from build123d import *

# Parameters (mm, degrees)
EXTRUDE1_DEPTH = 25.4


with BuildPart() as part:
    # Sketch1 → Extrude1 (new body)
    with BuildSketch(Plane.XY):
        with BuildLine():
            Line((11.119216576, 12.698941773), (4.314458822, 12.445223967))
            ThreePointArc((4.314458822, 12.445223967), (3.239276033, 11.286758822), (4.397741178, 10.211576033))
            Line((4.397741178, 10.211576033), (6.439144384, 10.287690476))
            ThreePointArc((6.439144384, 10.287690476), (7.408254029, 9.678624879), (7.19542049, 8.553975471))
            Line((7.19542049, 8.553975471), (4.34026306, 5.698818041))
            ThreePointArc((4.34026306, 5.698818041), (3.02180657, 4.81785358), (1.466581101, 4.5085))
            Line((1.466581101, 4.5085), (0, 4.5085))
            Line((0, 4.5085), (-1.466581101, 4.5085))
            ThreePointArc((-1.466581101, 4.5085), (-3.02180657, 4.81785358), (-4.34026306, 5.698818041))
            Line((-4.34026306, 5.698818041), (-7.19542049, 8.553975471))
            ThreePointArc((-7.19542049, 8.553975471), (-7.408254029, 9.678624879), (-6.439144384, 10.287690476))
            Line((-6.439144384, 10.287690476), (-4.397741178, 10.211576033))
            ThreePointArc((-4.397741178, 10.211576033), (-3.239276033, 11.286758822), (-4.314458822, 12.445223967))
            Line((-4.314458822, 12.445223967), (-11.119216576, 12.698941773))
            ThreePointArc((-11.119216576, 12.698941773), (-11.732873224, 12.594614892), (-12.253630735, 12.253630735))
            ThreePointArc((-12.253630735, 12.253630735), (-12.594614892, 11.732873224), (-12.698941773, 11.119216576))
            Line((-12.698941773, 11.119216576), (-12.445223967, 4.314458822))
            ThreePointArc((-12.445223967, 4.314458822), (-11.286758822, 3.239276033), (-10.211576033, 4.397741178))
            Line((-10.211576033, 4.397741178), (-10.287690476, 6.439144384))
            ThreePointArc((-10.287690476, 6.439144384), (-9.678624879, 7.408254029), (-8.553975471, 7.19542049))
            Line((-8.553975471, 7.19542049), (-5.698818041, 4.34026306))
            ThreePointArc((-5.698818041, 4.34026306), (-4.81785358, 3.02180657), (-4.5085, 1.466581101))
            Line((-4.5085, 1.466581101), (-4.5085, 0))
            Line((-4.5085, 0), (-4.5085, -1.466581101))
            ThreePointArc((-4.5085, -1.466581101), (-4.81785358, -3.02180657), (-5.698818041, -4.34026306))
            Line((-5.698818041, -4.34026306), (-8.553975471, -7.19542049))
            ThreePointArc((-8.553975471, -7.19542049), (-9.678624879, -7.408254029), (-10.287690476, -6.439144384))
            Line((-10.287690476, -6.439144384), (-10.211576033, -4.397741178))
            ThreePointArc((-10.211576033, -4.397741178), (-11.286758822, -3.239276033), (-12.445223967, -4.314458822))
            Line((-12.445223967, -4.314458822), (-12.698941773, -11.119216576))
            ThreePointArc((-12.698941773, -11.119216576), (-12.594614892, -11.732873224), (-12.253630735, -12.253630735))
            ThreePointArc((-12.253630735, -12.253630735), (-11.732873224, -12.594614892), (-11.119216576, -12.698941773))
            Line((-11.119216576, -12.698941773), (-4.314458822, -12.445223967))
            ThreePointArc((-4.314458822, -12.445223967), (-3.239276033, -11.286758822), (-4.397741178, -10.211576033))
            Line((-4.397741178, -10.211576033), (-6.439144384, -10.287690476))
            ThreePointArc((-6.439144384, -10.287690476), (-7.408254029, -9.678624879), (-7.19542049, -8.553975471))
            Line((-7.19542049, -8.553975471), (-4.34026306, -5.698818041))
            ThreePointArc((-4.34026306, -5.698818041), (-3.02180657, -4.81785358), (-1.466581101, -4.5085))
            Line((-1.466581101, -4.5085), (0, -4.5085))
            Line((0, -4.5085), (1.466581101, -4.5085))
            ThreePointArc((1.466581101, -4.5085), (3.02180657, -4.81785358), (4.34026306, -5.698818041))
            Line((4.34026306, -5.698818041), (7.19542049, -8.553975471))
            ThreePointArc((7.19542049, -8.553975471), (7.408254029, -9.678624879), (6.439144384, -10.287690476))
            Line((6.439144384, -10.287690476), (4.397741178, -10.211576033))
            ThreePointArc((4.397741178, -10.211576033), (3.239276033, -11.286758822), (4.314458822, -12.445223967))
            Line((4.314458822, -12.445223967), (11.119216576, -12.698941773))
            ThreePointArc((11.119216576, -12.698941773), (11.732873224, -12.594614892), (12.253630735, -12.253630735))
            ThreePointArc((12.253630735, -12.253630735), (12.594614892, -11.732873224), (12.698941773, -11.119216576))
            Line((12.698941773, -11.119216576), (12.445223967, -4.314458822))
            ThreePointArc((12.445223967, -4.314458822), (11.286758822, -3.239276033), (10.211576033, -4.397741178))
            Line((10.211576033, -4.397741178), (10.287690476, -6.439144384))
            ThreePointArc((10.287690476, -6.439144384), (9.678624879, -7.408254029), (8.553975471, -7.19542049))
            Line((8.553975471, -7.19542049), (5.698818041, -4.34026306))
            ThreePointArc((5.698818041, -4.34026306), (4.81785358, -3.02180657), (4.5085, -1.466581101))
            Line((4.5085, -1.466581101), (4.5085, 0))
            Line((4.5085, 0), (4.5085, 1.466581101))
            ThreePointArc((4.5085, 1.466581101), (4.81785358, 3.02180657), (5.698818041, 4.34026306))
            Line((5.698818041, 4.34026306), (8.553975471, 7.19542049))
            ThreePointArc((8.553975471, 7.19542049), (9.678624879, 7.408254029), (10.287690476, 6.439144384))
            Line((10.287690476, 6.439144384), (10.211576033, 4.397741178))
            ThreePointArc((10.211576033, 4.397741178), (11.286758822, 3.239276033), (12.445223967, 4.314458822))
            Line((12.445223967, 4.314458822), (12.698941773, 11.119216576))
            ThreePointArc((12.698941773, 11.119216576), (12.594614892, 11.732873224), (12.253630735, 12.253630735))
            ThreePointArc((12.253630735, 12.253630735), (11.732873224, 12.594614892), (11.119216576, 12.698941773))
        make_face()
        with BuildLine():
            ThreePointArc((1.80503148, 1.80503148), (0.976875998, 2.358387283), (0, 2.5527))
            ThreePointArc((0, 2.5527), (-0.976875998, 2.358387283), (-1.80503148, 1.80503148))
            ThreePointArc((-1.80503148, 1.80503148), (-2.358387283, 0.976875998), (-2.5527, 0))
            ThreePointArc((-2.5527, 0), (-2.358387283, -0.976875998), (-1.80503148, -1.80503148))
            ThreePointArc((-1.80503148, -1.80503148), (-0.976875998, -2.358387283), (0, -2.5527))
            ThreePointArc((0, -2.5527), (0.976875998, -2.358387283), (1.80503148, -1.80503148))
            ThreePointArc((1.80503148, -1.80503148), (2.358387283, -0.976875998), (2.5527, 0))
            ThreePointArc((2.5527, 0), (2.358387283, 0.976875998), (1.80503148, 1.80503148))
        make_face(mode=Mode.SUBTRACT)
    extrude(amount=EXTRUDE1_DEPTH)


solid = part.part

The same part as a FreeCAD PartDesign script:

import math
import FreeCAD as App
import Part
import Sketcher

V = App.Vector
Q = App.Units.Quantity

doc = App.newDocument("Part")
body = doc.addObject("PartDesign::Body", "Body")

sketch1 = body.newObject("Sketcher::SketchObject", "Sketch")
sketch1.AttachmentSupport = (doc.getObject("XY_Plane"), [""])
sketch1.MapMode = "FlatFace"
sketch1.addGeometry([
    Part.LineSegment(V(11.1, 12.7, 0), V(4.3, 12.4, 0)),
    Part.ArcOfCircle(Part.Circle(V(4.4, 11.3, 0), V(0, 0, 1), 1.1), math.radians(92), math.radians(272)),
    Part.LineSegment(V(4.4, 10.2, 0), V(6.4, 10.3, 0)),
    Part.ArcOfCircle(Part.Circle(V(6.5, 9.3, 0), V(0, 0, 1), 1), math.radians(-45), math.radians(92)),
    Part.LineSegment(V(7.2, 8.6, 0), V(4.3, 5.7, 0)),
    Part.ArcOfCircle(Part.Circle(V(1.5, 8.6, 0), V(0, 0, 1), 4.1), math.radians(-90), math.radians(-45)),
    Part.LineSegment(V(1.5, 4.5, 0), V(-1.5, 4.5, 0)),
    Part.ArcOfCircle(Part.Circle(V(-1.5, 8.6, 0), V(0, 0, 1), 4.1), math.radians(-135), math.radians(-90)),
    Part.LineSegment(V(-4.3, 5.7, 0), V(-7.2, 8.6, 0)),
    Part.ArcOfCircle(Part.Circle(V(-6.5, 9.3, 0), V(0, 0, 1), 1), math.radians(88), math.radians(225)),
    Part.LineSegment(V(-6.4, 10.3, 0), V(-4.4, 10.2, 0)),
    Part.ArcOfCircle(Part.Circle(V(-4.4, 11.3, 0), V(0, 0, 1), 1.1), math.radians(-92), math.radians(88)),
    Part.LineSegment(V(-4.3, 12.4, 0), V(-11.1, 12.7, 0)),
    Part.ArcOfCircle(Part.Circle(V(-11.2, 11.2, 0), V(0, 0, 1), 1.5), math.radians(88), math.radians(135)),
    Part.ArcOfCircle(Part.Circle(V(-11.2, 11.2, 0), V(0, 0, 1), 1.5), math.radians(135), math.radians(182)),
    Part.LineSegment(V(-12.7, 11.1, 0), V(-12.4, 4.3, 0)),
    Part.ArcOfCircle(Part.Circle(V(-11.3, 4.4, 0), V(0, 0, 1), 1.1), math.radians(-178), math.radians(2)),
    Part.LineSegment(V(-10.2, 4.4, 0), V(-10.3, 6.4, 0)),
    Part.ArcOfCircle(Part.Circle(V(-9.3, 6.5, 0), V(0, 0, 1), 1), math.radians(45), math.radians(182)),
    Part.LineSegment(V(-8.6, 7.2, 0), V(-5.7, 4.3, 0)),
    Part.ArcOfCircle(Part.Circle(V(-8.6, 1.5, 0), V(0, 0, 1), 4.1), math.radians(0), math.radians(45)),
    Part.LineSegment(V(-4.5, 1.5, 0), V(-4.5, -1.5, 0)),
    Part.ArcOfCircle(Part.Circle(V(-8.6, -1.5, 0), V(0, 0, 1), 4.1), math.radians(-45), math.radians(0)),
    Part.LineSegment(V(-5.7, -4.3, 0), V(-8.6, -7.2, 0)),
    Part.ArcOfCircle(Part.Circle(V(-9.3, -6.5, 0), V(0, 0, 1), 1), math.radians(178), math.radians(315)),
    Part.LineSegment(V(-10.3, -6.4, 0), V(-10.2, -4.4, 0)),
    Part.ArcOfCircle(Part.Circle(V(-11.3, -4.4, 0), V(0, 0, 1), 1.1), math.radians(-2), math.radians(178)),
    Part.LineSegment(V(-12.4, -4.3, 0), V(-12.7, -11.1, 0)),
    Part.ArcOfCircle(Part.Circle(V(-11.2, -11.2, 0), V(0, 0, 1), 1.5), math.radians(178), math.radians(225)),
    Part.ArcOfCircle(Part.Circle(V(-11.2, -11.2, 0), V(0, 0, 1), 1.5), math.radians(-135), math.radians(-88)),
    Part.LineSegment(V(-11.1, -12.7, 0), V(-4.3, -12.4, 0)),
    Part.ArcOfCircle(Part.Circle(V(-4.4, -11.3, 0), V(0, 0, 1), 1.1), math.radians(-88), math.radians(92)),
    Part.LineSegment(V(-4.4, -10.2, 0), V(-6.4, -10.3, 0)),
    Part.ArcOfCircle(Part.Circle(V(-6.5, -9.3, 0), V(0, 0, 1), 1), math.radians(135), math.radians(272)),
    Part.LineSegment(V(-7.2, -8.6, 0), V(-4.3, -5.7, 0)),
    Part.ArcOfCircle(Part.Circle(V(-1.5, -8.6, 0), V(0, 0, 1), 4.1), math.radians(90), math.radians(135)),
    Part.LineSegment(V(-1.5, -4.5, 0), V(1.5, -4.5, 0)),
    Part.ArcOfCircle(Part.Circle(V(1.5, -8.6, 0), V(0, 0, 1), 4.1), math.radians(45), math.radians(90)),
    Part.LineSegment(V(4.3, -5.7, 0), V(7.2, -8.6, 0)),
    Part.ArcOfCircle(Part.Circle(V(6.5, -9.3, 0), V(0, 0, 1), 1), math.radians(-92), math.radians(45)),
    Part.LineSegment(V(6.4, -10.3, 0), V(4.4, -10.2, 0)),
    Part.ArcOfCircle(Part.Circle(V(4.4, -11.3, 0), V(0, 0, 1), 1.1), math.radians(88), math.radians(268)),
    Part.LineSegment(V(4.3, -12.4, 0), V(11.1, -12.7, 0)),
    Part.ArcOfCircle(Part.Circle(V(11.2, -11.2, 0), V(0, 0, 1), 1.5), math.radians(-92), math.radians(-45)),
    Part.ArcOfCircle(Part.Circle(V(11.2, -11.2, 0), V(0, 0, 1), 1.5), math.radians(-45), math.radians(2)),
    Part.LineSegment(V(12.7, -11.1, 0), V(12.4, -4.3, 0)),
    Part.ArcOfCircle(Part.Circle(V(11.3, -4.4, 0), V(0, 0, 1), 1.1), math.radians(2), math.radians(182)),
    Part.LineSegment(V(10.2, -4.4, 0), V(10.3, -6.4, 0)),
    Part.ArcOfCircle(Part.Circle(V(9.3, -6.5, 0), V(0, 0, 1), 1), math.radians(-135), math.radians(2)),
    Part.LineSegment(V(8.6, -7.2, 0), V(5.7, -4.3, 0)),
    Part.ArcOfCircle(Part.Circle(V(8.6, -1.5, 0), V(0, 0, 1), 4.1), math.radians(-180), math.radians(-135)),
    Part.LineSegment(V(4.5, -1.5, 0), V(4.5, 1.5, 0)),
    Part.ArcOfCircle(Part.Circle(V(8.6, 1.5, 0), V(0, 0, 1), 4.1), math.radians(135), math.radians(180)),
    Part.LineSegment(V(5.7, 4.3, 0), V(8.6, 7.2, 0)),
    Part.ArcOfCircle(Part.Circle(V(9.3, 6.5, 0), V(0, 0, 1), 1), math.radians(-2), math.radians(135)),
    Part.LineSegment(V(10.3, 6.4, 0), V(10.2, 4.4, 0)),
    Part.ArcOfCircle(Part.Circle(V(11.3, 4.4, 0), V(0, 0, 1), 1.1), math.radians(178), math.radians(358)),
    Part.LineSegment(V(12.4, 4.3, 0), V(12.7, 11.1, 0)),
    Part.ArcOfCircle(Part.Circle(V(11.2, 11.2, 0), V(0, 0, 1), 1.5), math.radians(-2), math.radians(45)),
    Part.ArcOfCircle(Part.Circle(V(11.2, 11.2, 0), V(0, 0, 1), 1.5), math.radians(45), math.radians(92)),
    Part.ArcOfCircle(Part.Circle(V(0, 0, 0), V(0, 0, 1), 2.6), math.radians(45), math.radians(90)),
    Part.ArcOfCircle(Part.Circle(V(0, 0, 0), V(0, 0, 1), 2.6), math.radians(0), math.radians(45)),
    Part.ArcOfCircle(Part.Circle(V(0, 0, 0), V(0, 0, 1), 2.6), math.radians(-45), math.radians(0)),
    Part.ArcOfCircle(Part.Circle(V(0, 0, 0), V(0, 0, 1), 2.6), math.radians(-90), math.radians(-45)),
    Part.ArcOfCircle(Part.Circle(V(0, 0, 0), V(0, 0, 1), 2.6), math.radians(-135), math.radians(-90)),
    Part.ArcOfCircle(Part.Circle(V(0, 0, 0), V(0, 0, 1), 2.6), math.radians(180), math.radians(225)),
    Part.ArcOfCircle(Part.Circle(V(0, 0, 0), V(0, 0, 1), 2.6), math.radians(135), math.radians(180)),
    Part.ArcOfCircle(Part.Circle(V(0, 0, 0), V(0, 0, 1), 2.6), math.radians(90), math.radians(135)),
], False)
sketch1.addConstraint([
    Sketcher.Constraint("Tangent", 0, 2, 1, 1),
    Sketcher.Constraint("Tangent", 1, 2, 2, 1),
    Sketcher.Constraint("Tangent", 2, 2, 3, 2),
    Sketcher.Constraint("Tangent", 3, 1, 4, 1),
    Sketcher.Constraint("Tangent", 4, 2, 5, 2),
    Sketcher.Constraint("Tangent", 5, 1, 6, 1),
    Sketcher.Constraint("Tangent", 6, 2, 7, 2),
    Sketcher.Constraint("Tangent", 7, 1, 8, 1),
    Sketcher.Constraint("Tangent", 8, 2, 9, 2),
    Sketcher.Constraint("Tangent", 9, 1, 10, 1),
    Sketcher.Constraint("Tangent", 10, 2, 11, 1),
    Sketcher.Constraint("Tangent", 11, 2, 12, 1),
    Sketcher.Constraint("Tangent", 12, 2, 13, 1),
    Sketcher.Constraint("Tangent", 13, 2, 14, 1),
    Sketcher.Constraint("Tangent", 14, 2, 15, 1),
    Sketcher.Constraint("Tangent", 15, 2, 16, 1),
    Sketcher.Constraint("Tangent", 16, 2, 17, 1),
    Sketcher.Constraint("Tangent", 17, 2, 18, 2),
    Sketcher.Constraint("Tangent", 18, 1, 19, 1),
    Sketcher.Constraint("Tangent", 19, 2, 20, 2),
    Sketcher.Constraint("Tangent", 20, 1, 21, 1),
    Sketcher.Constraint("Tangent", 21, 2, 22, 2),
    Sketcher.Constraint("Tangent", 22, 1, 23, 1),
    Sketcher.Constraint("Tangent", 23, 2, 24, 2),
    Sketcher.Constraint("Tangent", 24, 1, 25, 1),
    Sketcher.Constraint("Tangent", 25, 2, 26, 1),
    Sketcher.Constraint("Tangent", 26, 2, 27, 1),
    Sketcher.Constraint("Tangent", 27, 2, 28, 1),
    Sketcher.Constraint("Tangent", 28, 2, 29, 1),
    Sketcher.Constraint("Tangent", 29, 2, 30, 1),
    Sketcher.Constraint("Tangent", 30, 2, 31, 1),
    Sketcher.Constraint("Tangent", 31, 2, 32, 1),
    Sketcher.Constraint("Tangent", 32, 2, 33, 2),
    Sketcher.Constraint("Tangent", 33, 1, 34, 1),
    Sketcher.Constraint("Tangent", 34, 2, 35, 2),
    Sketcher.Constraint("Tangent", 35, 1, 36, 1),
    Sketcher.Constraint("Tangent", 36, 2, 37, 2),
    Sketcher.Constraint("Tangent", 37, 1, 38, 1),
    Sketcher.Constraint("Tangent", 38, 2, 39, 2),
    Sketcher.Constraint("Tangent", 39, 1, 40, 1),
    Sketcher.Constraint("Tangent", 40, 2, 41, 1),
    Sketcher.Constraint("Tangent", 41, 2, 42, 1),
    Sketcher.Constraint("Tangent", 42, 2, 43, 1),
    Sketcher.Constraint("Tangent", 43, 2, 44, 1),
    Sketcher.Constraint("Tangent", 44, 2, 45, 1),
    Sketcher.Constraint("Tangent", 45, 2, 46, 1),
    Sketcher.Constraint("Tangent", 46, 2, 47, 1),
    Sketcher.Constraint("Tangent", 47, 2, 48, 2),
    Sketcher.Constraint("Tangent", 48, 1, 49, 1),
    Sketcher.Constraint("Tangent", 49, 2, 50, 2),
    Sketcher.Constraint("Tangent", 50, 1, 51, 1),
    Sketcher.Constraint("Tangent", 51, 2, 52, 2),
    Sketcher.Constraint("Tangent", 52, 1, 53, 1),
    Sketcher.Constraint("Tangent", 53, 2, 54, 2),
    Sketcher.Constraint("Tangent", 54, 1, 55, 1),
    Sketcher.Constraint("Tangent", 55, 2, 56, 1),
    Sketcher.Constraint("Tangent", 56, 2, 57, 1),
    Sketcher.Constraint("Tangent", 57, 2, 58, 1),
    Sketcher.Constraint("Tangent", 58, 2, 59, 1),
    Sketcher.Constraint("Tangent", 59, 2, 0, 1),
    Sketcher.Constraint("Tangent", 60, 1, 61, 2),
    Sketcher.Constraint("Tangent", 61, 1, 62, 2),
    Sketcher.Constraint("Tangent", 62, 1, 63, 2),
    Sketcher.Constraint("Tangent", 63, 1, 64, 2),
    Sketcher.Constraint("Tangent", 64, 1, 65, 2),
    Sketcher.Constraint("Tangent", 65, 1, 66, 2),
    Sketcher.Constraint("Tangent", 66, 1, 67, 2),
    Sketcher.Constraint("Tangent", 67, 1, 60, 2),
    Sketcher.Constraint("Horizontal", 6),
    Sketcher.Constraint("Vertical", 21),
    Sketcher.Constraint("Horizontal", 36),
    Sketcher.Constraint("Vertical", 51),
    Sketcher.Constraint("Coincident", 60, 3, -1, 1),
    Sketcher.Constraint("Coincident", 62, 3, -1, 1),
    Sketcher.Constraint("Coincident", 64, 3, -1, 1),
    Sketcher.Constraint("Equal", 5, 7),
    Sketcher.Constraint("Equal", 3, 9),
    Sketcher.Constraint("Equal", 1, 11),
    Sketcher.Constraint("Equal", 13, 14),
    Sketcher.Constraint("Equal", 11, 16),
    Sketcher.Constraint("Equal", 9, 18),
    Sketcher.Constraint("Equal", 7, 20),
    Sketcher.Constraint("Equal", 20, 22),
    Sketcher.Constraint("Equal", 18, 24),
    Sketcher.Constraint("Equal", 16, 26),
    Sketcher.Constraint("Equal", 14, 28),
    Sketcher.Constraint("Equal", 28, 29),
    Sketcher.Constraint("Equal", 26, 31),
    Sketcher.Constraint("Equal", 24, 33),
    Sketcher.Constraint("Equal", 22, 35),
    Sketcher.Constraint("Equal", 35, 37),
    Sketcher.Constraint("Equal", 33, 39),
    Sketcher.Constraint("Equal", 31, 41),
    Sketcher.Constraint("Equal", 29, 43),
    Sketcher.Constraint("Equal", 43, 44),
    Sketcher.Constraint("Equal", 41, 46),
    Sketcher.Constraint("Equal", 39, 48),
    Sketcher.Constraint("Equal", 37, 50),
    Sketcher.Constraint("Equal", 50, 52),
    Sketcher.Constraint("Equal", 48, 54),
    Sketcher.Constraint("Equal", 46, 56),
    Sketcher.Constraint("Equal", 44, 58),
    Sketcher.Constraint("Equal", 58, 59),
    Sketcher.Constraint("Equal", 64, 65),
    Sketcher.Constraint("Symmetric", 1, 3, 31, 3, -1, 1),
    Sketcher.Constraint("Symmetric", 3, 3, 33, 3, -1, 1),
    Sketcher.Constraint("Symmetric", 5, 3, 35, 3, -1, 1),
    Sketcher.Constraint("Symmetric", 9, 3, 39, 3, -1, 1),
    Sketcher.Constraint("Symmetric", 11, 3, 41, 3, -1, 1),
    Sketcher.Constraint("Symmetric", 13, 3, 43, 3, -1, 1),
    Sketcher.Constraint("Symmetric", 16, 3, 46, 3, -1, 1),
    Sketcher.Constraint("Symmetric", 18, 3, 48, 3, -1, 1),
    Sketcher.Constraint("Symmetric", 20, 3, 50, 3, -1, 1),
    Sketcher.Constraint("Symmetric", 24, 3, 54, 3, -1, 1),
    Sketcher.Constraint("Symmetric", 26, 3, 56, 3, -1, 1),
    Sketcher.Constraint("Symmetric", 28, 3, 58, 3, -1, 1),
    Sketcher.Constraint("Symmetric", 3, 3, 9, 3, -2),
    Sketcher.Constraint("Symmetric", 1, 3, 11, 3, -2),
    Sketcher.Constraint("Symmetric", 28, 3, 43, 3, -2),
    Sketcher.Constraint("Symmetric", 26, 3, 46, 3, -2),
    Sketcher.Constraint("Symmetric", 24, 3, 48, 3, -2),
    Sketcher.Constraint("PointOnObject", 61, 1, -1),
    Sketcher.Constraint("PointOnObject", 63, 1, -2),
    Sketcher.Constraint("PointOnObject", 65, 1, -1),
    Sketcher.Constraint("PointOnObject", 67, 1, -2),
    Sketcher.Constraint("Parallel", 0, 2),
    Sketcher.Constraint("Perpendicular", 4, 8),
    Sketcher.Constraint("Perpendicular", 2, 15),
    Sketcher.Constraint("Parallel", 15, 17),
    Sketcher.Constraint("Parallel", 8, 19),
    Sketcher.Constraint("Perpendicular", 19, 23),
    Sketcher.Constraint("Perpendicular", 34, 38),
    Sketcher.Constraint("Perpendicular", 49, 53),
    Sketcher.Constraint("Horizontal", 22, 3, 50, 3),
    Sketcher.Constraint("Horizontal", 28, 2, 43, 2),
    Sketcher.Constraint("Horizontal", 13, 2, 58, 2),
    Sketcher.Constraint("Horizontal", 62, 1, 64, 1),
    Sketcher.Constraint("Horizontal", 60, 1, 66, 1),
    Sketcher.Constraint("Vertical", 13, 2, 28, 2),
    Sketcher.Constraint("Vertical", 60, 1, 62, 1),
    Sketcher.Constraint("Equal", 36, 21),
    Sketcher.Constraint("Equal", 12, 15),
    Sketcher.Constraint("Equal", 10, 17),
    Sketcher.Constraint("Equal", 8, 19),
    Sketcher.Constraint("Radius", 3, Q("0.04 in")),
    Sketcher.Constraint("Radius", 5, Q("0.16 in")),
    Sketcher.Constraint("Radius", 13, Q("0.06 in")),
    Sketcher.Constraint("Radius", 1, Q("0.044 in")),
    Sketcher.Constraint("Radius", 60, Q("0.1005 in")),
    Sketcher.Constraint("DistanceX", 13, 3, -1, 1, Q("0.44 in")),
    Sketcher.Constraint("DistanceY", -1, 1, 1, 3, Q("0.446 in")),
    Sketcher.Constraint("DistanceX", -1, 1, 3, 3, Q("0.255 in")),
    Sketcher.Constraint("DistanceX", -1, 1, 1, 3, Q("0.1715 in")),
    Sketcher.Constraint("DistanceY", -1, 1, 5, 3, Q("0.3375 in")),
    Sketcher.Constraint("DistanceX", 13, 2, -1, 1, 12.253631),
    Sketcher.Constraint("DistanceX", -1, 1, 60, 1, 1.805031),
])
pad1 = body.newObject("PartDesign::Pad", "Pad")
pad1.Profile = sketch1
pad1.Length = Q("1 in")

doc.recompute()
